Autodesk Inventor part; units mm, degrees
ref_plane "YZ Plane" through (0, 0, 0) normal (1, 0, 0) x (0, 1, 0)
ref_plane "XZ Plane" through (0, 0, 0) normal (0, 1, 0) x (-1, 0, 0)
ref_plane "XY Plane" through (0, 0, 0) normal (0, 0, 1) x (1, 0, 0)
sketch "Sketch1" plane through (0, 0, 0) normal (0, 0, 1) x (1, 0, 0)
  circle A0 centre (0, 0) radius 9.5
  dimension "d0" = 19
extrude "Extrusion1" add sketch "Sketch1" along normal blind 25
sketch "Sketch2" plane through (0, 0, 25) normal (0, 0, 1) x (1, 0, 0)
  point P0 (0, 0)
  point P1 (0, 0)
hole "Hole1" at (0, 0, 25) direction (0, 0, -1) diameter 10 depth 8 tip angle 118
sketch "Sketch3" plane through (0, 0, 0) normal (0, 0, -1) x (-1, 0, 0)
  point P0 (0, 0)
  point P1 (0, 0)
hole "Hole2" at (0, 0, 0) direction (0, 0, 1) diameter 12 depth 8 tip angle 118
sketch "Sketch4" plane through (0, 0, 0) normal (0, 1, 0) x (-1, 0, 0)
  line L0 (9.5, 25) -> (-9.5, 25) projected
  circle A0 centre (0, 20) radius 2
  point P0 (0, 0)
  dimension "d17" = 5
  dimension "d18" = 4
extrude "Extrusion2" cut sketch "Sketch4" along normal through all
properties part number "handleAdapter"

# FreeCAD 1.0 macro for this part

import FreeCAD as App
import Part
import Sketcher

V = App.Vector

doc = App.newDocument("Part")
body = doc.addObject("PartDesign::Body", "Body")

sketch1 = body.newObject("Sketcher::SketchObject", "Sketch")
sketch1.AttachmentSupport = (doc.getObject("XY_Plane"), [""])
sketch1.MapMode = "FlatFace"
sketch1.addGeometry(Part.Circle(V(0, 0, 0), V(0, 0, 1), 10), False)
sketch1.addConstraint(Sketcher.Constraint("Coincident", 0, 3, -1, 1))
sketch1.addConstraint(Sketcher.Constraint("Diameter", 0, 19.0))
pad1 = body.newObject("PartDesign::Pad", "Pad")
pad1.Profile = sketch1
pad1.Length = 25

sketch2 = body.newObject("Sketcher::SketchObject", "Sketch001")
sketch2.AttachmentSupport = (doc.getObject("XY_Plane"), [""])
sketch2.MapMode = "FlatFace"
sketch2.AttachmentOffset = App.Placement(V(0, 0, 25), App.Rotation())
sketch2.addGeometry(Part.Circle(V(0, 0, 0), V(0, 0, 1), 5), False)
sketch2.addConstraint(Sketcher.Constraint("Coincident", 0, 3, -1, 1))
sketch2.addConstraint(Sketcher.Constraint("Diameter", 0, 10.0))
doc.recompute()
hole = body.newObject("PartDesign::Hole", "Hole")
hole.Profile = sketch2
hole.ThreadType = "None"
hole.Diameter = 10
hole.DepthType = "Dimension"
hole.Depth = 8
hole.DrillPoint = "Angled"
hole.DrillPointAngle = 118

sketch3 = body.newObject("Sketcher::SketchObject", "Sketch002")
sketch3.AttachmentSupport = (doc.getObject("XY_Plane"), [""])
sketch3.MapMode = "FlatFace"
sketch3.addGeometry(Part.Circle(V(0, 0, 0), V(0, 0, 1), 6), False)
sketch3.addConstraint(Sketcher.Constraint("Coincident", 0, 3, -1, 1))
sketch3.addConstraint(Sketcher.Constraint("Diameter", 0, 12.0))
doc.recompute()
hole2 = body.newObject("PartDesign::Hole", "Hole001")
hole2.Profile = sketch3
hole2.ThreadType = "None"
hole2.Diameter = 12
hole2.DepthType = "Dimension"
hole2.Depth = 8
hole2.DrillPoint = "Angled"
hole2.DrillPointAngle = 118
hole2.Reversed = True

sketch4 = body.newObject("Sketcher::SketchObject", "Sketch003")
sketch4.AttachmentSupport = (doc.getObject("XZ_Plane"), [""])
sketch4.MapMode = "FlatFace"
sketch4.addGeometry(Part.Circle(V(0, 20, 0), V(0, 0, 1), 2), False)
sketch4.addConstraint(Sketcher.Constraint("PointOnObject", 0, 3, -2))
sketch4.addConstraint(Sketcher.Constraint("Diameter", 0, 4.0))
sketch4.addConstraint(Sketcher.Constraint("DistanceY", -1, 1, 0, 3, 20.0))
pocket1 = body.newObject("PartDesign::Pocket", "Pocket")
pocket1.Profile = sketch4
pocket1.Type = "ThroughAll"

doc.recompute()
